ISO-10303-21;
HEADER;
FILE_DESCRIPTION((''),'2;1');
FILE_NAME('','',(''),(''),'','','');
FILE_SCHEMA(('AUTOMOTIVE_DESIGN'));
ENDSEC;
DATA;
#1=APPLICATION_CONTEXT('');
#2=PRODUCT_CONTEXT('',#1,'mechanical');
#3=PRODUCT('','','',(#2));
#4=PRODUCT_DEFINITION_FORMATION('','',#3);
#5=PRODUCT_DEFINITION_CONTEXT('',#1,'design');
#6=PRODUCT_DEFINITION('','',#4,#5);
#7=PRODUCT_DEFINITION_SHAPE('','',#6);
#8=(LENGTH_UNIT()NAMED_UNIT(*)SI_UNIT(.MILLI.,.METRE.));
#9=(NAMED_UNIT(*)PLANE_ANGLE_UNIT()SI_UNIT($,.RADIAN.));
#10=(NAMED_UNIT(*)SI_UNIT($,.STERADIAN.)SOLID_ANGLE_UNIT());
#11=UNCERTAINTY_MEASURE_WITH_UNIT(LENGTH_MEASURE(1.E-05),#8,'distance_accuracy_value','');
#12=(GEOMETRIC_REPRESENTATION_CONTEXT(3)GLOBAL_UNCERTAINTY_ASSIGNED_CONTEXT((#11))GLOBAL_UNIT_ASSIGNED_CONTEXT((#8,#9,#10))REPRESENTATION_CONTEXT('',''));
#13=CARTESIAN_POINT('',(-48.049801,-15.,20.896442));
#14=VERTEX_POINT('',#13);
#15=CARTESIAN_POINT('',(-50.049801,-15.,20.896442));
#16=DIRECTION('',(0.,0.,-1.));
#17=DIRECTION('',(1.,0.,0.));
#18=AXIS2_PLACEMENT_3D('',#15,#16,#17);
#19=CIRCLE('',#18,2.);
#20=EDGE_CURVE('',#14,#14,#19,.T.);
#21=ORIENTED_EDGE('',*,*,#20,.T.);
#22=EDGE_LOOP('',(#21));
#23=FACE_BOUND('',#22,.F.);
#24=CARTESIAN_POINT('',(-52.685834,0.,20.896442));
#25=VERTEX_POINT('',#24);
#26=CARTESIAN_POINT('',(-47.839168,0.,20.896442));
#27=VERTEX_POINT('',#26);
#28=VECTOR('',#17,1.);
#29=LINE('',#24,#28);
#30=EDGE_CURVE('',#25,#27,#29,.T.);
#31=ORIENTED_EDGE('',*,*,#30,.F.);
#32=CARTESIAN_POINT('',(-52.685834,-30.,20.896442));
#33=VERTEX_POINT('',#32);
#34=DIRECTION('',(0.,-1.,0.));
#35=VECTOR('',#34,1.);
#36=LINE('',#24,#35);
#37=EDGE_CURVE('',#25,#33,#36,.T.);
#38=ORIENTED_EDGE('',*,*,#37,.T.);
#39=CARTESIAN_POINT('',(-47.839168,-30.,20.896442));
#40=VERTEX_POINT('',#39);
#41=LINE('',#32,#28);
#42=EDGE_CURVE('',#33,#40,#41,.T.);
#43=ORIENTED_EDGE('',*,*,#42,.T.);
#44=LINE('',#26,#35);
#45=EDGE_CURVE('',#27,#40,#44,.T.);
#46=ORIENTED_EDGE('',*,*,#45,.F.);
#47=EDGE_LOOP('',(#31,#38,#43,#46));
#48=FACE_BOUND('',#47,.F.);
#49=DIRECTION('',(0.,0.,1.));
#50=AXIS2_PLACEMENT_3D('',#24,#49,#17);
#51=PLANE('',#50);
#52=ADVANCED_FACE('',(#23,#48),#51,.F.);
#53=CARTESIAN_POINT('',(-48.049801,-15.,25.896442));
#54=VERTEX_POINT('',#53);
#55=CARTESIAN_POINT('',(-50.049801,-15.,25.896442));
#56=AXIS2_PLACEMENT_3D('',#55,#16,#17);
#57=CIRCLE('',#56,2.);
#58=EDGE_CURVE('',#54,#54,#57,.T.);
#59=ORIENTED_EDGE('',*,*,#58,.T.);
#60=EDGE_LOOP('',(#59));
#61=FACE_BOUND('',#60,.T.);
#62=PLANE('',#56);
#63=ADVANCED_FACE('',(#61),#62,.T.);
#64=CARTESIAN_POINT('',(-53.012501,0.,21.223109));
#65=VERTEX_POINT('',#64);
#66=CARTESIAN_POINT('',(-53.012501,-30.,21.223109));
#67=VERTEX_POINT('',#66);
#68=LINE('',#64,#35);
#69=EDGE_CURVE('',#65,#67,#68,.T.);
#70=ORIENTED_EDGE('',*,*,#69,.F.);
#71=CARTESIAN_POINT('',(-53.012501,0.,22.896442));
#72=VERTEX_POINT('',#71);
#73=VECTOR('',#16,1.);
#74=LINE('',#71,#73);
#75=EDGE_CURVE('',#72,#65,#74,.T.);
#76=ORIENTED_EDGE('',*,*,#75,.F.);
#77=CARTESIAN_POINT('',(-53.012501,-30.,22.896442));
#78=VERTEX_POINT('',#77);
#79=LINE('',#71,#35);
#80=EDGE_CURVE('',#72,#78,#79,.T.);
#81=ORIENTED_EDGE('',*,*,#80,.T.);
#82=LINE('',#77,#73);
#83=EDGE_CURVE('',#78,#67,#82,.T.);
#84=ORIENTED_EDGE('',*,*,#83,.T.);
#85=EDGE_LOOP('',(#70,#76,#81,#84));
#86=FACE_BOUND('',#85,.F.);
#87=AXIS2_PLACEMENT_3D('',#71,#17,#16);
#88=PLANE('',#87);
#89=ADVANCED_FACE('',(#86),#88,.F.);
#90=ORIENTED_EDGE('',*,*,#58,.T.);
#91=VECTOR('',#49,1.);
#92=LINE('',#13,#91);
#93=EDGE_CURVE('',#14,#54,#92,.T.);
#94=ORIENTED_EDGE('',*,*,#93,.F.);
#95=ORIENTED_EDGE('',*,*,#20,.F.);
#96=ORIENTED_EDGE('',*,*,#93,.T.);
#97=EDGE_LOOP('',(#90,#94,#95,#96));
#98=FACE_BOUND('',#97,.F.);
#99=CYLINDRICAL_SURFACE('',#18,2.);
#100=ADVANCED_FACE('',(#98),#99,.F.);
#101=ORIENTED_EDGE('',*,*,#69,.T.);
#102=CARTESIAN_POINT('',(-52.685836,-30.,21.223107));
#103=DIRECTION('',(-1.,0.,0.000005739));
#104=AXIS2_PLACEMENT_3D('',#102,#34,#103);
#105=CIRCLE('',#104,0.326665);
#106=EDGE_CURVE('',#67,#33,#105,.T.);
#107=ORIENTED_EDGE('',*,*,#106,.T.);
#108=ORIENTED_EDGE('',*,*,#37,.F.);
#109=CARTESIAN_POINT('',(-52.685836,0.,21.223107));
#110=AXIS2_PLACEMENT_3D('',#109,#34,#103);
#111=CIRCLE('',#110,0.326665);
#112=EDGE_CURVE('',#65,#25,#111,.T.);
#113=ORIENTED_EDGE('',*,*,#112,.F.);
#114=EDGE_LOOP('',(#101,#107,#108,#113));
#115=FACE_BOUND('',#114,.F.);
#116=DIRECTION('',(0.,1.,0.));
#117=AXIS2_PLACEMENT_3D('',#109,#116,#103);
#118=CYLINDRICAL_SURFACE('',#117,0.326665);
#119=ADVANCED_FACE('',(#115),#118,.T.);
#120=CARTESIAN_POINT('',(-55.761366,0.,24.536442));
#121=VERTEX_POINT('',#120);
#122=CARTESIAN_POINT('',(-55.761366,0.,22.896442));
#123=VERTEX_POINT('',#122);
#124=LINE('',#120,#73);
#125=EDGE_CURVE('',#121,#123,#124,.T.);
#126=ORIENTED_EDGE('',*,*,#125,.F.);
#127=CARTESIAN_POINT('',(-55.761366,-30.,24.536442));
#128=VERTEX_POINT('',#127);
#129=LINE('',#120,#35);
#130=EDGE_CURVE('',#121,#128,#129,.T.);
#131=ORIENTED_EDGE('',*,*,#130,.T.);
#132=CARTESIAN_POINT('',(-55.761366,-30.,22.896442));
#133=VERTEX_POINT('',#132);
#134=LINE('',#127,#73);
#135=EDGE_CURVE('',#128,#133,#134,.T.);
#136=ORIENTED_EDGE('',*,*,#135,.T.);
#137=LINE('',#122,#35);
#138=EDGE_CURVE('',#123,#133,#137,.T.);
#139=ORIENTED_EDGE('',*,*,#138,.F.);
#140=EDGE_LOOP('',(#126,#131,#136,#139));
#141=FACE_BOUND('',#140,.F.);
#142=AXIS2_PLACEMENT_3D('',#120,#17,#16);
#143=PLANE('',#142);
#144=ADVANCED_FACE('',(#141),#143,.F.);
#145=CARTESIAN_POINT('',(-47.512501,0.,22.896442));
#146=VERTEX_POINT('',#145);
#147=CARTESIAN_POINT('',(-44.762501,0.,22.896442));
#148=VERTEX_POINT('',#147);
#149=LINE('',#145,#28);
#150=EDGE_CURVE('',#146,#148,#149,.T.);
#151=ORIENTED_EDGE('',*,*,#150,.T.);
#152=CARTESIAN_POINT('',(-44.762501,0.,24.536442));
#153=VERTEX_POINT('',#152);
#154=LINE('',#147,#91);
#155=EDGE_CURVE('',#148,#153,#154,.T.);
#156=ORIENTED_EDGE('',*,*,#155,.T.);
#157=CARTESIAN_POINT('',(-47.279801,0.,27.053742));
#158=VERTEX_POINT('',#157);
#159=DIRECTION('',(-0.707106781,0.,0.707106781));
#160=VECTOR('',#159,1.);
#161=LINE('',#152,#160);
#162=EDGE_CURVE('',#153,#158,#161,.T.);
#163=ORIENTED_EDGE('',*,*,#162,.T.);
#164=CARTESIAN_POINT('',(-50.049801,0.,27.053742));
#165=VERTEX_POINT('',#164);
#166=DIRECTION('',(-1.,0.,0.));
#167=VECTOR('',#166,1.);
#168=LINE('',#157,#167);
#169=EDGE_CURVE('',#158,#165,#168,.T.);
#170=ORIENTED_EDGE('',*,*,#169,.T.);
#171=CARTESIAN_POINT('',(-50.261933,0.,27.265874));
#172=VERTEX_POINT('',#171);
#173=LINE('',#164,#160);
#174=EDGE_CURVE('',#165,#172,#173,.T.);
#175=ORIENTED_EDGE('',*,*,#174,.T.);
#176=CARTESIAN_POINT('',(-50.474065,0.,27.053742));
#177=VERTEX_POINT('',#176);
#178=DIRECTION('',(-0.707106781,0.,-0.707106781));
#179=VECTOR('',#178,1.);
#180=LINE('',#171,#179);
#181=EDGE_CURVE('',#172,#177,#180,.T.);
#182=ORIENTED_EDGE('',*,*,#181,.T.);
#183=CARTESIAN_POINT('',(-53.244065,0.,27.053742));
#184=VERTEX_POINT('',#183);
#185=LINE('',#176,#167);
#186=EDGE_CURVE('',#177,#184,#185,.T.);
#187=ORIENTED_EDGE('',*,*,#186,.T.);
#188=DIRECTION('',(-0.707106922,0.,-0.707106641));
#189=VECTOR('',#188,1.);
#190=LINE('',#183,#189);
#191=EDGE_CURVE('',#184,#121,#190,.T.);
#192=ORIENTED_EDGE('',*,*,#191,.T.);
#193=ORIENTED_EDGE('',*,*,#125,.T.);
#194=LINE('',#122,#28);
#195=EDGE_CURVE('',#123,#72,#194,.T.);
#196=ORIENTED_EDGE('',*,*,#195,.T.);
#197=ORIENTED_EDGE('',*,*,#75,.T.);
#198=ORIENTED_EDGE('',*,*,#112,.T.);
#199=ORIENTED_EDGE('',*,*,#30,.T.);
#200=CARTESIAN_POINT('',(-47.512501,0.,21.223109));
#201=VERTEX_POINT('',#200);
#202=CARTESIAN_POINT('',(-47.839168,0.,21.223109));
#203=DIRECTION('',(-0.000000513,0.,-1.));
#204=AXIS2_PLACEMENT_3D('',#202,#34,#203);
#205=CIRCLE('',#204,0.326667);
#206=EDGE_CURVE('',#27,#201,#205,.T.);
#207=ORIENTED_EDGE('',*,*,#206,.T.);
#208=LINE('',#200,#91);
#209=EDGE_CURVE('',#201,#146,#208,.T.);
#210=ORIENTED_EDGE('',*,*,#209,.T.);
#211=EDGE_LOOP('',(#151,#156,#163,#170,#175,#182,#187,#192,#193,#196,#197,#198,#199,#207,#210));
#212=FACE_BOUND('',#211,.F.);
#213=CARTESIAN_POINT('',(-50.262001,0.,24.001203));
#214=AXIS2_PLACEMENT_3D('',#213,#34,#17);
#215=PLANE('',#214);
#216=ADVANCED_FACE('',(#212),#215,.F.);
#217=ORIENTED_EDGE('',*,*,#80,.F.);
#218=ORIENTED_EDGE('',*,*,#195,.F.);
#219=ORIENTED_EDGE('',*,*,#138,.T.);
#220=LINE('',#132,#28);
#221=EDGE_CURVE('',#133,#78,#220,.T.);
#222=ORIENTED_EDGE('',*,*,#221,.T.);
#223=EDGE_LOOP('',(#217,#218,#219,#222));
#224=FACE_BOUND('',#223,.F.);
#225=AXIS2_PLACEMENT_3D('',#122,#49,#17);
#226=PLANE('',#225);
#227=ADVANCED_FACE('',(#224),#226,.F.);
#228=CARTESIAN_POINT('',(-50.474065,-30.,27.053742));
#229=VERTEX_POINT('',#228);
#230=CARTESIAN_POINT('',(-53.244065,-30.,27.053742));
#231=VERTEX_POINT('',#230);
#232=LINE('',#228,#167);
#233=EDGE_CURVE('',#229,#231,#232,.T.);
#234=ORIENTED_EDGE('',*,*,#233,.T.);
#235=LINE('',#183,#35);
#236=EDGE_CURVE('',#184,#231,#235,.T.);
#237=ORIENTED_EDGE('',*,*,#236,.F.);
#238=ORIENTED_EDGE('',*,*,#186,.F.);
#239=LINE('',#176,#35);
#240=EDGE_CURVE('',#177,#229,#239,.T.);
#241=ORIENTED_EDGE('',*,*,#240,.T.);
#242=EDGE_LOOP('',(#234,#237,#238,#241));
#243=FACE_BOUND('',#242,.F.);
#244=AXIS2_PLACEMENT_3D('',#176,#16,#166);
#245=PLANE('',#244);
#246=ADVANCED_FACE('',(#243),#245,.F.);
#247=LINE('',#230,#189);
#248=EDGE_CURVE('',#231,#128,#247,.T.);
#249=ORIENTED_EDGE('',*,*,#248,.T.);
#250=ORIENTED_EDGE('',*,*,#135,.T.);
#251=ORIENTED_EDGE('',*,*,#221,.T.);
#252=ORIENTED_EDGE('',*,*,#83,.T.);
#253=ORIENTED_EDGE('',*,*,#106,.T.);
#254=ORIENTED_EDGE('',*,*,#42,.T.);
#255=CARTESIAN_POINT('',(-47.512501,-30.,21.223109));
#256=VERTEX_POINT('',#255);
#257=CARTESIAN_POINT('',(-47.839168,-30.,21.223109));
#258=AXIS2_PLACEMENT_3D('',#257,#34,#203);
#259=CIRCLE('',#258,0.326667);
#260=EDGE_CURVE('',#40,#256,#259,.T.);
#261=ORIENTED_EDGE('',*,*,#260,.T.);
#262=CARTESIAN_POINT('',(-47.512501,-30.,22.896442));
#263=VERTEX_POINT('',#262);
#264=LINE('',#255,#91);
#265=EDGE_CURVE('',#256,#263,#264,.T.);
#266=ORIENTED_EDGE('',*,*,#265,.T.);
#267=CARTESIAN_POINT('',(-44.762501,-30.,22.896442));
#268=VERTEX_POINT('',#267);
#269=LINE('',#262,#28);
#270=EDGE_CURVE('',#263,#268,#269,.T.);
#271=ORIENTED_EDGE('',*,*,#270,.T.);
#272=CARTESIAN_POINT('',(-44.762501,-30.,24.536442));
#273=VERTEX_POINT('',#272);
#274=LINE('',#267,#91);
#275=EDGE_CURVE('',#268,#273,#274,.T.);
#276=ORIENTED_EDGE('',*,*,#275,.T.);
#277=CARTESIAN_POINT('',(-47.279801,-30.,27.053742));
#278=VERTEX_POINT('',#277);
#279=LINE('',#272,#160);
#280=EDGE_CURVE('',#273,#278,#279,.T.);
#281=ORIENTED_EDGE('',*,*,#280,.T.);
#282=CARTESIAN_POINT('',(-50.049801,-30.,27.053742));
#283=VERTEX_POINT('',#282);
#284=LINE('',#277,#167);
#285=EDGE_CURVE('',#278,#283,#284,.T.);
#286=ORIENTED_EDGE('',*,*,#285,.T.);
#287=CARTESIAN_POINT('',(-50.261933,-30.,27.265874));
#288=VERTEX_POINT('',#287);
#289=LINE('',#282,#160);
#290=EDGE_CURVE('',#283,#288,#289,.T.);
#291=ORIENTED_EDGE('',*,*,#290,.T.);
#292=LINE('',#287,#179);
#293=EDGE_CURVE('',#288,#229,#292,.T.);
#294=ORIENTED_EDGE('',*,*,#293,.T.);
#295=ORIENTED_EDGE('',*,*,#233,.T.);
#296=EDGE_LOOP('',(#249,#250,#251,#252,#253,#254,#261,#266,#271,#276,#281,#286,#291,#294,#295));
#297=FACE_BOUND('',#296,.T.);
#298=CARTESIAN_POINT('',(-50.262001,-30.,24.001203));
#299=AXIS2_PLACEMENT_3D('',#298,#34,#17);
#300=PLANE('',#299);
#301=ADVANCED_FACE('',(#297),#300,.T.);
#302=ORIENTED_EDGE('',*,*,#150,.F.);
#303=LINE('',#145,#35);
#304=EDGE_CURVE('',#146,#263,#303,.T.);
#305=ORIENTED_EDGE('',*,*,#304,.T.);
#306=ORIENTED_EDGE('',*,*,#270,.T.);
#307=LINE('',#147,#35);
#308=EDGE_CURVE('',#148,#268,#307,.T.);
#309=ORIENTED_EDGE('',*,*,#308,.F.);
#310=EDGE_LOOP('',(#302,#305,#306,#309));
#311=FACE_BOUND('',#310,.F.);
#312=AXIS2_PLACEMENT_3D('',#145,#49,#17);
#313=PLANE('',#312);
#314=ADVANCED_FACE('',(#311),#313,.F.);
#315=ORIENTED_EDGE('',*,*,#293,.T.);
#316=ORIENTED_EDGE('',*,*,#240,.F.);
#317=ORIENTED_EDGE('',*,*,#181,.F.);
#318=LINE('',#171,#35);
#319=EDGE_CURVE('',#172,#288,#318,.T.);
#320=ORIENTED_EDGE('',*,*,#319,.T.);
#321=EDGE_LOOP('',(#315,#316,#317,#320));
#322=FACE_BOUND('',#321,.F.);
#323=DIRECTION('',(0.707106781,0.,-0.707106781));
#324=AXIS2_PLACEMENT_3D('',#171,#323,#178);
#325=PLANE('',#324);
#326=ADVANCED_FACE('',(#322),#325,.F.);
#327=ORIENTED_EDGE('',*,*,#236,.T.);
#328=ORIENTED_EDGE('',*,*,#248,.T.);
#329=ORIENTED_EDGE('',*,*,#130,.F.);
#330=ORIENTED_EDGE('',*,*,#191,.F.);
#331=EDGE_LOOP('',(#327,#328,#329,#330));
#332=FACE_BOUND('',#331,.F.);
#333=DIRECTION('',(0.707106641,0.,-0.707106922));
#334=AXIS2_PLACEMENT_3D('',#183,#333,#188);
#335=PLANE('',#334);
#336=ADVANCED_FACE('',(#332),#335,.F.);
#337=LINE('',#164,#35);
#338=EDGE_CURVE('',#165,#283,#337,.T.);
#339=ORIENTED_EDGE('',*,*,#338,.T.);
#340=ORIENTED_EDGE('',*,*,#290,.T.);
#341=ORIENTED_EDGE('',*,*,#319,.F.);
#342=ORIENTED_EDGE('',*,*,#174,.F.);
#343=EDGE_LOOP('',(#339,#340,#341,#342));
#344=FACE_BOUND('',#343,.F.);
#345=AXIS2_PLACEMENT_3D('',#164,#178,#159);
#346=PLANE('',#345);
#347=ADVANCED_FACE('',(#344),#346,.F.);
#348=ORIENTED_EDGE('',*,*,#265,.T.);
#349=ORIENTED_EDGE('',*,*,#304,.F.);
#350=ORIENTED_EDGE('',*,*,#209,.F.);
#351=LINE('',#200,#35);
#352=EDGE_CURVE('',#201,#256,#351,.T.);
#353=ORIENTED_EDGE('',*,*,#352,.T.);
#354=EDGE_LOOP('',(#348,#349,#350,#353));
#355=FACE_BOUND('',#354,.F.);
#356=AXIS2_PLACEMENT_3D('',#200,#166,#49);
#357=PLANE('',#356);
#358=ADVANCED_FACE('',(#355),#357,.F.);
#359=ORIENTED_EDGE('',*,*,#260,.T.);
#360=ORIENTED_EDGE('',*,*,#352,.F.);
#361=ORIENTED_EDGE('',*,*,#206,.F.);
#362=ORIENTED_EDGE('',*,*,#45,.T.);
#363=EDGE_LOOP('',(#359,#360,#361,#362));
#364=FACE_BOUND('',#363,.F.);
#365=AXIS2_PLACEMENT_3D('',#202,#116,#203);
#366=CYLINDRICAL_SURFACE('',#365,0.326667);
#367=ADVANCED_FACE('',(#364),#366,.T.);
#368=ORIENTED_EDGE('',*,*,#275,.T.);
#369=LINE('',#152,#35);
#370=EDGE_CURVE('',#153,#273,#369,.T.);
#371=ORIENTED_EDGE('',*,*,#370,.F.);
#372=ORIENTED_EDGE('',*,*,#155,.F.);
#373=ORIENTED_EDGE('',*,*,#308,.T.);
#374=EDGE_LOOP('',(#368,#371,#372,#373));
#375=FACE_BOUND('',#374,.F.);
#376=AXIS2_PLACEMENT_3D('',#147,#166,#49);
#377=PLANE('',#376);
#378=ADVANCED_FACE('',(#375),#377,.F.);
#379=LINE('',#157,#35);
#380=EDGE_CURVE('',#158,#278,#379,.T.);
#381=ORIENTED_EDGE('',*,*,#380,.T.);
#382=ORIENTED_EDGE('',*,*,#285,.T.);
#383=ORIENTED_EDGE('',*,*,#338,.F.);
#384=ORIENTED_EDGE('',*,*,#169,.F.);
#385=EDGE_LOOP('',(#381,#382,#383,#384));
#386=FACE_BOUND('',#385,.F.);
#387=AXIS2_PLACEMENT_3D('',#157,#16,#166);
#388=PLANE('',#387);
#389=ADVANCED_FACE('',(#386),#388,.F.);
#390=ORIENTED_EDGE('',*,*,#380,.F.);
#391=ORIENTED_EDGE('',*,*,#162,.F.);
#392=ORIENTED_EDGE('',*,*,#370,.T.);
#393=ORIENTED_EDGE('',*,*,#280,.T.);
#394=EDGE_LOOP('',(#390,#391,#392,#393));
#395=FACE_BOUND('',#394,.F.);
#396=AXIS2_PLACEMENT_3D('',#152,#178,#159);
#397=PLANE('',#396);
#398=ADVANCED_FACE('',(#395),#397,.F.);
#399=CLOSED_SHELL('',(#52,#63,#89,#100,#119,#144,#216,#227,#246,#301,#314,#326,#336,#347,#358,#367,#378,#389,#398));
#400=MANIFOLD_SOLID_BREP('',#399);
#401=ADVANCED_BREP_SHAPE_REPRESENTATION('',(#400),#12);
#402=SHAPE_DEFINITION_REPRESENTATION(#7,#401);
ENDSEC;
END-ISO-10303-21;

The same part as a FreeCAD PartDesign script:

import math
import FreeCAD as App
import Part
import Sketcher
from FreeCAD import Vector

doc = App.newDocument("Part")
params = doc.addObject("Spreadsheet::Sheet", "Params")
for row, (alias, value) in enumerate([
    ("sketch1_length", "0.3 mm"),
    ("sketch1_width", "2.77 mm"),
    ("sketch1_width2", "2.75 mm"),
    ("sketch1_height", "1.64 mm"),
    ("sketch1_length2", "3.560001 mm"),
    ("pad1_length", "30 mm"),
    ("sketch2_diameter", "4 mm"),
    ("pocket1_length", "5 mm"),
], start=1):
    params.set(f"A{row}", alias)
    params.set(f"B{row}", "=" + value)
    params.setAlias(f"B{row}", alias)

body = doc.addObject("PartDesign::Body", "Body")

sketch1 = body.newObject("Sketcher::SketchObject", "Sketch")
sketch1.AttachmentSupport = (doc.getObject("XZ_Plane"), [""])
sketch1.MapMode = "FlatFace"
sketch1.addGeometry([
    Part.LineSegment(Vector(-50.47, 27.05, 0), Vector(-53.24, 27.05, 0)),
    Part.LineSegment(Vector(-53.24, 27.05, 0), Vector(-55.76, 24.54, 0)),
    Part.LineSegment(Vector(-55.76, 24.54, 0), Vector(-55.76, 22.9, 0)),
    Part.LineSegment(Vector(-55.76, 22.9, 0), Vector(-53.01, 22.9, 0)),
    Part.LineSegment(Vector(-53.01, 22.9, 0), Vector(-53.01, 21.22, 0)),
    Part.ArcOfCircle(Part.Circle(Vector(-52.69, 21.22, 0), Vector(0, 0, 1), 0.33), math.radians(180), math.radians(270)),
    Part.LineSegment(Vector(-52.69, 20.9, 0), Vector(-47.84, 20.9, 0)),
    Part.ArcOfCircle(Part.Circle(Vector(-47.84, 21.22, 0), Vector(0, 0, 1), 0.33), math.radians(-90), math.radians(0)),
    Part.LineSegment(Vector(-47.51, 21.22, 0), Vector(-47.51, 22.9, 0)),
    Part.LineSegment(Vector(-47.51, 22.9, 0), Vector(-44.76, 22.9, 0)),
    Part.LineSegment(Vector(-44.76, 22.9, 0), Vector(-44.76, 24.54, 0)),
    Part.LineSegment(Vector(-44.76, 24.54, 0), Vector(-47.28, 27.05, 0)),
    Part.LineSegment(Vector(-47.28, 27.05, 0), Vector(-50.05, 27.05, 0)),
    Part.LineSegment(Vector(-50.05, 27.05, 0), Vector(-50.26, 27.27, 0)),
    Part.LineSegment(Vector(-50.26, 27.27, 0), Vector(-50.47, 27.05, 0)),
], False)
sketch1.addConstraint([
    Sketcher.Constraint("Coincident", 0, 2, 1, 1),
    Sketcher.Constraint("Coincident", 1, 2, 2, 1),
    Sketcher.Constraint("Coincident", 2, 2, 3, 1),
    Sketcher.Constraint("Coincident", 3, 2, 4, 1),
    Sketcher.Constraint("Coincident", 4, 2, 5, 1),
    Sketcher.Constraint("Coincident", 5, 2, 6, 1),
    Sketcher.Constraint("Tangent", 6, 2, 7, 1),
    Sketcher.Constraint("Tangent", 7, 2, 8, 1),
    Sketcher.Constraint("Coincident", 8, 2, 9, 1),
    Sketcher.Constraint("Coincident", 9, 2, 10, 1),
    Sketcher.Constraint("Coincident", 10, 2, 11, 1),
    Sketcher.Constraint("Coincident", 11, 2, 12, 1),
    Sketcher.Constraint("Coincident", 12, 2, 13, 1),
    Sketcher.Constraint("Coincident", 13, 2, 14, 1),
    Sketcher.Constraint("Coincident", 14, 2, 0, 1),
    Sketcher.Constraint("Horizontal", 0),
    Sketcher.Constraint("Vertical", 2),
    Sketcher.Constraint("Horizontal", 3),
    Sketcher.Constraint("Vertical", 4),
    Sketcher.Constraint("Horizontal", 6),
    Sketcher.Constraint("Vertical", 8),
    Sketcher.Constraint("Horizontal", 9),
    Sketcher.Constraint("Vertical", 10),
    Sketcher.Constraint("Horizontal", 12),
    Sketcher.Constraint("Equal", 5, 7),
    Sketcher.Constraint("Perpendicular", 1, 11),
    Sketcher.Constraint("Parallel", 11, 13),
    Sketcher.Constraint("Perpendicular", 13, 14),
    Sketcher.Constraint("Horizontal", 7, 3, 4, 2),
    Sketcher.Constraint("Horizontal", 3, 2, 8, 2),
    Sketcher.Constraint("Horizontal", 1, 2, 10, 2),
    Sketcher.Constraint("Horizontal", 0, 2, 11, 2),
    Sketcher.Constraint("Equal", 0, 12),
    Sketcher.Constraint("Equal", 1, 11),
    Sketcher.Constraint("DistanceY", 5, 2, 3, 2, 2.0),
    Sketcher.Constraint("Distance", 13, 0.3),
    Sketcher.Constraint("DistanceX", 0, 2, 0, 1, 2.77),
    Sketcher.Constraint("DistanceX", 9, 1, 9, 2, 2.75),
    Sketcher.Constraint("DistanceY", 2, 2, 2, 1, 1.64),
    Sketcher.Constraint("DistanceX", 4, 2, 7, 2, 5.5),
    Sketcher.Constraint("Distance", 1, 3.560001),
    Sketcher.Constraint("Radius", 5, 0.326665),
    Sketcher.Constraint("DistanceX", 3, 2, -1, 1, 53.012501),
    Sketcher.Constraint("DistanceX", 6, 1, 6, 2, 4.846666),
    Sketcher.Constraint("DistanceY", -1, 1, 7, 3, 21.223109),
])
sketch1.setExpression("Constraints[35]", "Params.sketch1_length")
sketch1.setExpression("Constraints[36]", "Params.sketch1_width")
sketch1.setExpression("Constraints[37]", "Params.sketch1_width2")
sketch1.setExpression("Constraints[38]", "Params.sketch1_height")
sketch1.setExpression("Constraints[40]", "Params.sketch1_length2")
pad1 = body.newObject("PartDesign::Pad", "Pad")
pad1.Profile = sketch1
pad1.setExpression("Length", "Params.pad1_length")

sketch2 = body.newObject("Sketcher::SketchObject", "Sketch001")
sketch2.AttachmentSupport = (doc.getObject("XY_Plane"), [""])
sketch2.MapMode = "FlatFace"
sketch2.AttachmentOffset = App.Placement(Vector(0, 0, 20.896442), App.Rotation())
sketch2.addGeometry(Part.Circle(Vector(-50, -15, 0), Vector(0, 0, 1), 2), False)
sketch2.addConstraint([
    Sketcher.Constraint("Diameter", 0, 4.0),
    Sketcher.Constraint("DistanceY", 0, 3, -1, 1, 15.0),
    Sketcher.Constraint("DistanceX", 0, 3, -1, 1, 50.049801),
])
sketch2.setExpression("Constraints[0]", "Params.sketch2_diameter")
pocket1 = body.newObject("PartDesign::Pocket", "Pocket")
pocket1.Profile = sketch2
pocket1.setExpression("Length", "Params.pocket1_length")
pocket1.Reversed = True

doc.recompute()
